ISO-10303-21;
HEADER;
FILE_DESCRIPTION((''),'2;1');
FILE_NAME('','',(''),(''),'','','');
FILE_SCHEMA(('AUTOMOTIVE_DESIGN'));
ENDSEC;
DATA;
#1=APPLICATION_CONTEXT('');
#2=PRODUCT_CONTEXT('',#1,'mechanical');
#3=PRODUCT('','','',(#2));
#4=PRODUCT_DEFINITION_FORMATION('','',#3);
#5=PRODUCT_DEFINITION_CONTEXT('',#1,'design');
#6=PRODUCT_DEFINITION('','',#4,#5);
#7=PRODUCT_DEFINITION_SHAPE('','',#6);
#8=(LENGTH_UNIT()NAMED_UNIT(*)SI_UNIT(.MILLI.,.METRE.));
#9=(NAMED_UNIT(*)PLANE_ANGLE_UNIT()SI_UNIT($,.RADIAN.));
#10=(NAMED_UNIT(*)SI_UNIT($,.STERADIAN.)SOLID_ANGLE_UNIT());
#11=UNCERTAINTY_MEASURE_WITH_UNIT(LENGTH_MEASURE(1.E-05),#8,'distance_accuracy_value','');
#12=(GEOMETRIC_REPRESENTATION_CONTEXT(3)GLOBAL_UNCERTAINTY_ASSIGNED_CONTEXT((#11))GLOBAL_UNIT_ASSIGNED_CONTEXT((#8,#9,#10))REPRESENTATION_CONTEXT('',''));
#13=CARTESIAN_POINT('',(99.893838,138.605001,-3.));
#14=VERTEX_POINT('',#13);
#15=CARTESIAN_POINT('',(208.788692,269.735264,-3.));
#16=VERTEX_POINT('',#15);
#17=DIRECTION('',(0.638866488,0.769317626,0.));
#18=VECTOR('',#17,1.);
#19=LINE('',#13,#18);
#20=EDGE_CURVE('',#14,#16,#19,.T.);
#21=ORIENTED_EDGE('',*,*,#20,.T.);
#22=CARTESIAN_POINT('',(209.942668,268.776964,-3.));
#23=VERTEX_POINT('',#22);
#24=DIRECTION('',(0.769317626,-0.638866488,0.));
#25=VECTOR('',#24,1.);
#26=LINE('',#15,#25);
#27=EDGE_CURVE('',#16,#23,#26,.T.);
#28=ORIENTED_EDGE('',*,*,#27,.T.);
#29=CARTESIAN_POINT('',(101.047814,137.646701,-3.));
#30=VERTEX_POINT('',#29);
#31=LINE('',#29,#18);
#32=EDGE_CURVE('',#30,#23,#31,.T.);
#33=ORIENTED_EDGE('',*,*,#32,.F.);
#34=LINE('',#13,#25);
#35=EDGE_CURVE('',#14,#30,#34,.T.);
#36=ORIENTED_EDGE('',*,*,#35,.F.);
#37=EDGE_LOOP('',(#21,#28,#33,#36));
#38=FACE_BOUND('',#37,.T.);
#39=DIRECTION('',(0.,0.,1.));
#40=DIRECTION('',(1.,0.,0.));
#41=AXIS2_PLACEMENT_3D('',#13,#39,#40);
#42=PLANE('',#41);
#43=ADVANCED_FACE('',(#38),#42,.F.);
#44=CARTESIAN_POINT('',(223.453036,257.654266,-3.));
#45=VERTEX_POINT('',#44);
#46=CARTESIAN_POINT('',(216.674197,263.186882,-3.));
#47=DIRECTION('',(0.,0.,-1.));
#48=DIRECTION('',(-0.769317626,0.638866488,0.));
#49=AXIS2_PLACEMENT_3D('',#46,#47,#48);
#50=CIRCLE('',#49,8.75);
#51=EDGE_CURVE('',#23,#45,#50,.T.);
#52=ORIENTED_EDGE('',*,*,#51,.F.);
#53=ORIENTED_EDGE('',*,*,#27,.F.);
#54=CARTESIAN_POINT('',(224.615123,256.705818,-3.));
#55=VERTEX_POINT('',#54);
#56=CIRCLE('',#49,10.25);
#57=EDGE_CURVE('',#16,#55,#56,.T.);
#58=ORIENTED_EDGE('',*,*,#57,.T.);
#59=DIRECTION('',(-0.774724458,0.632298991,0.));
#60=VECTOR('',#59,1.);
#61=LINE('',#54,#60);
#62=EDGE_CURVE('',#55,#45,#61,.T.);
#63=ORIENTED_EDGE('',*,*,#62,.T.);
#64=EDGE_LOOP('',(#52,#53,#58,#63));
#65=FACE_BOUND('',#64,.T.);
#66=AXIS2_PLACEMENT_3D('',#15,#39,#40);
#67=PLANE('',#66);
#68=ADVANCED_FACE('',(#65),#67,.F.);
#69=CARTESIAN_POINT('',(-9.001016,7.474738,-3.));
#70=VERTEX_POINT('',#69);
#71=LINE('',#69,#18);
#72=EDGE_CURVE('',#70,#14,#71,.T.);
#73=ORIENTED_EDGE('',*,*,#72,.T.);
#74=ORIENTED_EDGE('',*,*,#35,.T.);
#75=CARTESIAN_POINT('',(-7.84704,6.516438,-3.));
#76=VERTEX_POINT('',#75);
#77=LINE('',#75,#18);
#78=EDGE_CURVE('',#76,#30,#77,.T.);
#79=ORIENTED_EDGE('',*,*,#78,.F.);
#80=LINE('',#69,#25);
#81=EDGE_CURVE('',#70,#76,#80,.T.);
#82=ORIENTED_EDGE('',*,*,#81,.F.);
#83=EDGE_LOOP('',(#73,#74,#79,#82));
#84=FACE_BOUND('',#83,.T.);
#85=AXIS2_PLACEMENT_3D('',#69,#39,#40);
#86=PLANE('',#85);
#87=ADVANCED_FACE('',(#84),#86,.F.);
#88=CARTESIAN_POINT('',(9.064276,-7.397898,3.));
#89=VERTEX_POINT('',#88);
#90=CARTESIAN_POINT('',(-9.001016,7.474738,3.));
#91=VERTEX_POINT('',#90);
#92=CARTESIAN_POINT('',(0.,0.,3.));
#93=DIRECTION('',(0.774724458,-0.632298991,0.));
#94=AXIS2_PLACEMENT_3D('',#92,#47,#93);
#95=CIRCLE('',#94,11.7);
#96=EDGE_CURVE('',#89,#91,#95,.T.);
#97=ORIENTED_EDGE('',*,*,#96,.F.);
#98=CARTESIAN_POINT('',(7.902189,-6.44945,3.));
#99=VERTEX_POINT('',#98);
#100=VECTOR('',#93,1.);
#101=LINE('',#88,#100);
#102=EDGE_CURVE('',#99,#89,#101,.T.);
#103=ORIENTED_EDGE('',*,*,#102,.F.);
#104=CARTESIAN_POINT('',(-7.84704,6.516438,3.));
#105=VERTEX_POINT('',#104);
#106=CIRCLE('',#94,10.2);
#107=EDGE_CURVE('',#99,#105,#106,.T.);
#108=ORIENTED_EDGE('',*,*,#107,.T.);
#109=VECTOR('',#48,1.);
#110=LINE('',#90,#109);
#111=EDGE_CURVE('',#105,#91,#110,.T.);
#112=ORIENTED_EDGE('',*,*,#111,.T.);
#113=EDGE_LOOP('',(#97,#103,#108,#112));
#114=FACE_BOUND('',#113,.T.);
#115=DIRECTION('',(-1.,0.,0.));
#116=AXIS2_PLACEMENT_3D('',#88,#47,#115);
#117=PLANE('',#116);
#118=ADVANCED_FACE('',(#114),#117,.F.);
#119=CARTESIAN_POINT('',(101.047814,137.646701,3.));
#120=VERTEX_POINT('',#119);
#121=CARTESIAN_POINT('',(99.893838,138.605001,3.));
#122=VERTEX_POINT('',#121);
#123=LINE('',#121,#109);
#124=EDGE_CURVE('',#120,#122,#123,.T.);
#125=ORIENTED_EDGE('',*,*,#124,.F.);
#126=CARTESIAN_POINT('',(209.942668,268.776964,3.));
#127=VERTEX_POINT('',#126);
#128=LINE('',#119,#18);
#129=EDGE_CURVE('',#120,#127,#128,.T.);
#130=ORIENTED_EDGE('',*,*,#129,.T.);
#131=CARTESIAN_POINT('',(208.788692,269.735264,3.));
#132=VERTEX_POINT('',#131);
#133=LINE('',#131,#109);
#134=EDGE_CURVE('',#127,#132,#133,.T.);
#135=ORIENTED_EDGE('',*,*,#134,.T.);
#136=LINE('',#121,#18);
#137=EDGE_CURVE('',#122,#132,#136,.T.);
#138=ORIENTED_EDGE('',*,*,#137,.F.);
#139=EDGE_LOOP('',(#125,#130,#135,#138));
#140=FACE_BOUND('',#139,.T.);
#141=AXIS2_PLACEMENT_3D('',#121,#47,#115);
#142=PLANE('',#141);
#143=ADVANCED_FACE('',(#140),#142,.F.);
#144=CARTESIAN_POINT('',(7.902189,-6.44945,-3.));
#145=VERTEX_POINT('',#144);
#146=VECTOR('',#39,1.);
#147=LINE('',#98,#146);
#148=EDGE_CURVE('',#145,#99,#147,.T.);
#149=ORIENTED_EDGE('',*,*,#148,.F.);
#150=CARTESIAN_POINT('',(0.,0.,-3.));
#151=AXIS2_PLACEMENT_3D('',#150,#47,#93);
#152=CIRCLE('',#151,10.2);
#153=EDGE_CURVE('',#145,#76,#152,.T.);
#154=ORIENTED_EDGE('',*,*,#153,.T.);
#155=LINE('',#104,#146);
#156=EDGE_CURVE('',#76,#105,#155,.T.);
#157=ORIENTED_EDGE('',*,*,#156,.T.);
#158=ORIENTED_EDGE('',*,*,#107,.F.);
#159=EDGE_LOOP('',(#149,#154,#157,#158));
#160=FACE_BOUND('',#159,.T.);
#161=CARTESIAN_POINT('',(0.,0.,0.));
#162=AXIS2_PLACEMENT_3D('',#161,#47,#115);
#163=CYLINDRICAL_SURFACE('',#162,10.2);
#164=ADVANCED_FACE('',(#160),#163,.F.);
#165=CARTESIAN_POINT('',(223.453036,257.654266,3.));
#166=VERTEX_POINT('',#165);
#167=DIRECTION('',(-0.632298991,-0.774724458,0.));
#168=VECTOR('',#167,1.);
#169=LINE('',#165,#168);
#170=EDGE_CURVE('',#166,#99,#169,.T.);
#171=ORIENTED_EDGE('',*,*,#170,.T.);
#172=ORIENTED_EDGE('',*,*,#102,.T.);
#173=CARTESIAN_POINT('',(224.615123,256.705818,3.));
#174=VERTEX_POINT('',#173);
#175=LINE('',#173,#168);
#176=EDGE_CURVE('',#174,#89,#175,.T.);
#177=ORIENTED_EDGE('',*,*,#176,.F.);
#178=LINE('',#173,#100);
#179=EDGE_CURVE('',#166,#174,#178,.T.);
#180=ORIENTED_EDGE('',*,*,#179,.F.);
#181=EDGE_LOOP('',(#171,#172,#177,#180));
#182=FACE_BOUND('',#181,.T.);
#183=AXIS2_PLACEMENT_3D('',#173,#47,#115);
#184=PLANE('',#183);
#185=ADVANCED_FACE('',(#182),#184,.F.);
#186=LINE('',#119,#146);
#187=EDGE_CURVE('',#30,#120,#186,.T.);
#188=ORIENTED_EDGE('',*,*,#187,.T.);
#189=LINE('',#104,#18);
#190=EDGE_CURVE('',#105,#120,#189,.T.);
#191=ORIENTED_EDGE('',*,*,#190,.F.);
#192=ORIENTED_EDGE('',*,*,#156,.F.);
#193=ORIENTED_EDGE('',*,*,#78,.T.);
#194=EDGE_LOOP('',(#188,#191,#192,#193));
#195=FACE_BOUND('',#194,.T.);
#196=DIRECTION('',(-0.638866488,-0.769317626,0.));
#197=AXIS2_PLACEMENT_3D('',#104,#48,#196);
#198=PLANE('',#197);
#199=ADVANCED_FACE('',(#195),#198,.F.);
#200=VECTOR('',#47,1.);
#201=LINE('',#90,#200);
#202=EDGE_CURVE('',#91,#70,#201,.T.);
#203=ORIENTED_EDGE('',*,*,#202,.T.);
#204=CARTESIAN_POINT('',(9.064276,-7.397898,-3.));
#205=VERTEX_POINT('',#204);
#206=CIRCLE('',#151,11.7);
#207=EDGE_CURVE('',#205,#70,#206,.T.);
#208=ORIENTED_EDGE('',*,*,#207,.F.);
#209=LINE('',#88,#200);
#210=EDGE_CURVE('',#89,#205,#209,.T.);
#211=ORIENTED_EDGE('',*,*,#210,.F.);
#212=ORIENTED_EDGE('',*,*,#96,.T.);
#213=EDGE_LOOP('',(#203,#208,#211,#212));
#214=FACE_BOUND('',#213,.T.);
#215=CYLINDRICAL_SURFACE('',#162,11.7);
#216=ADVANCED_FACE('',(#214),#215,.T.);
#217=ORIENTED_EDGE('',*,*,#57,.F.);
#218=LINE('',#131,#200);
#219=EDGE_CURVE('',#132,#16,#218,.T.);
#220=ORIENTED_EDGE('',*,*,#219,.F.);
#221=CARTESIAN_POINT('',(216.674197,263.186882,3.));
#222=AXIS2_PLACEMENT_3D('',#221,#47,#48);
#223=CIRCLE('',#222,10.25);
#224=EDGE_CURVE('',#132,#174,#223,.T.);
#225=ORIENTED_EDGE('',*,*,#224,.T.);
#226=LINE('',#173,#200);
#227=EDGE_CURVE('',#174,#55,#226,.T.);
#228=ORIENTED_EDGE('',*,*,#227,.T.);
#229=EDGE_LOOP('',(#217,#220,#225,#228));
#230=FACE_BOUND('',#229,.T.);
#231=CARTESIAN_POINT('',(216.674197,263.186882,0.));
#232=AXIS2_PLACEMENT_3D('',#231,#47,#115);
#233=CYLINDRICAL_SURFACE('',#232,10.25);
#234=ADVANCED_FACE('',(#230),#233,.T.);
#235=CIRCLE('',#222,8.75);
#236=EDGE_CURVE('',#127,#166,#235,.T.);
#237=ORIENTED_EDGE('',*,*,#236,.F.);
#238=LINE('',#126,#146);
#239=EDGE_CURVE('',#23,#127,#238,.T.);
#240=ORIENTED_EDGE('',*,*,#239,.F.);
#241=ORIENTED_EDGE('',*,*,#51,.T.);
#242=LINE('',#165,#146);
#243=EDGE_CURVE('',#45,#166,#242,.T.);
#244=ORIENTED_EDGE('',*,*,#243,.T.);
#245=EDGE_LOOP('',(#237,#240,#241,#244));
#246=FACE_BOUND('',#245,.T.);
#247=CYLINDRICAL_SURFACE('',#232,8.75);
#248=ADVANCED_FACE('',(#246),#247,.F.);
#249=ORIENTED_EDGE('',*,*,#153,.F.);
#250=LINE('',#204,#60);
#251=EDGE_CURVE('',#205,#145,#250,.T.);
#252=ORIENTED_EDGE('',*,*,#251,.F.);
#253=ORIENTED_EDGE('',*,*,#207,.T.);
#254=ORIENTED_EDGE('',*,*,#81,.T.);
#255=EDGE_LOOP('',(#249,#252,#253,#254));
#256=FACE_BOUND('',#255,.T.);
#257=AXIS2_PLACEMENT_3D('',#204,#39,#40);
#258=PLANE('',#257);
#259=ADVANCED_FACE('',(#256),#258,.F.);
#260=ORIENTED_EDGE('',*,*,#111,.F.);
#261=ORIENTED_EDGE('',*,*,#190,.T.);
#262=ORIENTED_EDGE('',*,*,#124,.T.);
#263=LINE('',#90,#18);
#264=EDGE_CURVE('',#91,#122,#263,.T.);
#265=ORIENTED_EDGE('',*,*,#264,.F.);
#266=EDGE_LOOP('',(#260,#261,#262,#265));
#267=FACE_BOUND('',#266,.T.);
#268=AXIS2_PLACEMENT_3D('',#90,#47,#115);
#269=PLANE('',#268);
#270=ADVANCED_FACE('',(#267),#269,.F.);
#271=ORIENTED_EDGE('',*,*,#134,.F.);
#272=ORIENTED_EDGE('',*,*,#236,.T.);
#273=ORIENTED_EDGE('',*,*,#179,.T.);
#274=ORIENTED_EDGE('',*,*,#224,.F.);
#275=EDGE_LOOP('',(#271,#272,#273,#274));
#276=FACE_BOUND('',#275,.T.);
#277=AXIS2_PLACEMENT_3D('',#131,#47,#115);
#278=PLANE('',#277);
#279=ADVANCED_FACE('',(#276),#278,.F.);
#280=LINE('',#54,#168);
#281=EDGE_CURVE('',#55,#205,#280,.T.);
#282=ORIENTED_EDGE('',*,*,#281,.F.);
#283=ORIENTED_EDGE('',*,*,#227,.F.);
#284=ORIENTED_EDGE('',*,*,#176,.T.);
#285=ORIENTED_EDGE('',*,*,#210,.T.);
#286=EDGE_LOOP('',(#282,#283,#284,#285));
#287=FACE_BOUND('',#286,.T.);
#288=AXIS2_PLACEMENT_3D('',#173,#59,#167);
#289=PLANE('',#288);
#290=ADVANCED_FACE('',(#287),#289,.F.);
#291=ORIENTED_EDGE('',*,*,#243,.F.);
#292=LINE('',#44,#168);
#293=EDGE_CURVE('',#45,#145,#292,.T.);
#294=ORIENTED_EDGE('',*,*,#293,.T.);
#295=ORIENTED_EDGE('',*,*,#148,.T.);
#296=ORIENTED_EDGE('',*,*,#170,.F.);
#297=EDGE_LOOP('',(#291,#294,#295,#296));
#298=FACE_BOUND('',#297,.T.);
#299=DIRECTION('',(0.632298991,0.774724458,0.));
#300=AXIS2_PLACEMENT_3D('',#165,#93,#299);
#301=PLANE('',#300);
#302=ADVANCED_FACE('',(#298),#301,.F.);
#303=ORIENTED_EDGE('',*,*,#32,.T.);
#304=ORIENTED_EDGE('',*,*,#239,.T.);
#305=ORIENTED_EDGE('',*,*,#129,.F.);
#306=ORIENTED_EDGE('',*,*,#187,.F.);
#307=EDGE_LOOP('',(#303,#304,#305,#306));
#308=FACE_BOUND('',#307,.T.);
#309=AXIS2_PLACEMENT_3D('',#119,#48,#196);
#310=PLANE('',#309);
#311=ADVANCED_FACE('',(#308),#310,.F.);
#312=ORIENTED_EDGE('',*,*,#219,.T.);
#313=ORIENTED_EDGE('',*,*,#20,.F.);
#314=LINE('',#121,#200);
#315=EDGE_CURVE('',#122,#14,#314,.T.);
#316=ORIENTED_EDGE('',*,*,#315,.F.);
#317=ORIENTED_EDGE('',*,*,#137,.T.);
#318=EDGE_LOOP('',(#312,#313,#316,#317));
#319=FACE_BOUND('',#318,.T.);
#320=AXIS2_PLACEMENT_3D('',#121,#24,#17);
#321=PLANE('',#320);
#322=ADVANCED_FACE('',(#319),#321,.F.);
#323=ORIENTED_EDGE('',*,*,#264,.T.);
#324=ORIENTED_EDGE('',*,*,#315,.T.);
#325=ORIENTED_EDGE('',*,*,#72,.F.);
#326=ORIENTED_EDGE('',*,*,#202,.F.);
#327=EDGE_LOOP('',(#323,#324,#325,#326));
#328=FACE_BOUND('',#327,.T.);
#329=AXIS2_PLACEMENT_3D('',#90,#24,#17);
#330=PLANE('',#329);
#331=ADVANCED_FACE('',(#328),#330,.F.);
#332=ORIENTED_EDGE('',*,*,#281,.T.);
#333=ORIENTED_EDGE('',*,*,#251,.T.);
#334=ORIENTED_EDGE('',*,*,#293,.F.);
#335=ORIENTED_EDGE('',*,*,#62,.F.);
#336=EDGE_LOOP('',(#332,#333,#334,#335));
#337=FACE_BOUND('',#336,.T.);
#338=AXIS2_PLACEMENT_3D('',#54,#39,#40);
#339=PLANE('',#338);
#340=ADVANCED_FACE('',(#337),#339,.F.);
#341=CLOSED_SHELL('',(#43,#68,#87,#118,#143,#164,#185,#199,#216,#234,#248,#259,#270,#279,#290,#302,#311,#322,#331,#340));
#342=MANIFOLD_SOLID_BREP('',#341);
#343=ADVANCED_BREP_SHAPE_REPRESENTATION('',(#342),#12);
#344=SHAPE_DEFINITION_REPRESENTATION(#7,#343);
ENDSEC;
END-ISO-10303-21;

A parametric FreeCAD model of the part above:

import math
import FreeCAD as App
import Part
import Sketcher
Q = App.Units.Quantity


def add_polygon(sketch, points):
    """Adds a closed chain of lines whose ends are joined by coincident constraints."""
    first, n = sketch.GeometryCount, len(points)
    for a, b in zip(points, points[1:] + points[:1]):
        sketch.addGeometry(Part.LineSegment(App.Vector(*a, 0), App.Vector(*b, 0)), False)
    for i in range(n):
        sketch.addConstraint(Sketcher.Constraint("Coincident", first + i, 2, first + (i + 1) % n, 1))

doc = App.newDocument("Part")
body = doc.addObject("PartDesign::Body", "Body")

# Sketch on an angled plane
sketch1 = doc.addObject("Sketcher::SketchObject", "Sketch")
body.addObject(sketch1)
sketch1.Placement = App.Placement(App.Vector(101.047814, 137.646701, 0), App.Rotation(App.Vector(-0.769317626, 0.638866488, 0), App.Vector(0, 0, -0.999999999), App.Vector(-0.638866488, -0.769317626, 0), "ZXY"))
add_polygon(sketch1, [(0, 3), (0, -3), (1.5, -3), (1.5, 3)])  # lines 0-3
sketch1.addConstraint(Sketcher.Constraint("Vertical", 0))
sketch1.addConstraint(Sketcher.Constraint("Horizontal", 1))
sketch1.addConstraint(Sketcher.Constraint("Vertical", 2))
sketch1.addConstraint(Sketcher.Constraint("Horizontal", 3))
sketch1.addConstraint(Sketcher.Constraint("Symmetric", 0, 2, 3, 2, -1, 1))
sketch1.addConstraint(Sketcher.Constraint("DistanceY", 0, 2, 0, 1, Q("6 mm")))
sketch1.addConstraint(Sketcher.Constraint("DistanceX", 1, 1, 1, 2, Q("1.5 mm")))

# Sketch on XY plane
sketch2 = doc.addObject("Sketcher::SketchObject", "Sketch001")
body.addObject(sketch2)
sketch2.AttachmentSupport = (doc.XY_Plane, [""])
sketch2.MapMode = "FlatFace"
sketch2.addGeometry(Part.LineSegment(App.Vector(210, 269, 0), App.Vector(-8, 7, 0)), False)
sketch2.addGeometry(Part.ArcOfCircle(Part.Circle(App.Vector(0, 0, 0), App.Vector(0, 0, 1), 10), math.radians(140), math.radians(321)), False)
sketch2.addGeometry(Part.LineSegment(App.Vector(8, -6, 0), App.Vector(223, 258, 0)), False)
sketch2.addGeometry(Part.ArcOfCircle(Part.Circle(App.Vector(217, 263, 0), App.Vector(0, 0, 1), 9), math.radians(-39), math.radians(140)), False)
sketch2.addConstraint(Sketcher.Constraint("Tangent", 0, 2, 1, 1))
sketch2.addConstraint(Sketcher.Constraint("Tangent", 1, 2, 2, 1))
sketch2.addConstraint(Sketcher.Constraint("Tangent", 2, 2, 3, 1))
sketch2.addConstraint(Sketcher.Constraint("Tangent", 3, 2, 0, 1))
sketch2.addConstraint(Sketcher.Constraint("Coincident", 1, 3, -1, 1))
sketch2.addConstraint(Sketcher.Constraint("Radius", 1, Q("10.2 mm")))
sketch2.addConstraint(Sketcher.Constraint("Radius", 3, Q("8.75 mm")))
sketch2.addConstraint(Sketcher.Constraint("Distance", 0, Q("340.900191 mm")))
sketch2.addConstraint(Sketcher.Constraint("DistanceX", 0, 2, -1, 1, Q("7.84704 mm")))
doc.recompute()

additivepipe = doc.addObject("PartDesign::AdditivePipe", "AdditivePipe")
body.addObject(additivepipe)
additivepipe.Profile = sketch1
additivepipe.Spine = (sketch2, ["Edge1", "Edge2", "Edge3", "Edge4"])

doc.recompute()
